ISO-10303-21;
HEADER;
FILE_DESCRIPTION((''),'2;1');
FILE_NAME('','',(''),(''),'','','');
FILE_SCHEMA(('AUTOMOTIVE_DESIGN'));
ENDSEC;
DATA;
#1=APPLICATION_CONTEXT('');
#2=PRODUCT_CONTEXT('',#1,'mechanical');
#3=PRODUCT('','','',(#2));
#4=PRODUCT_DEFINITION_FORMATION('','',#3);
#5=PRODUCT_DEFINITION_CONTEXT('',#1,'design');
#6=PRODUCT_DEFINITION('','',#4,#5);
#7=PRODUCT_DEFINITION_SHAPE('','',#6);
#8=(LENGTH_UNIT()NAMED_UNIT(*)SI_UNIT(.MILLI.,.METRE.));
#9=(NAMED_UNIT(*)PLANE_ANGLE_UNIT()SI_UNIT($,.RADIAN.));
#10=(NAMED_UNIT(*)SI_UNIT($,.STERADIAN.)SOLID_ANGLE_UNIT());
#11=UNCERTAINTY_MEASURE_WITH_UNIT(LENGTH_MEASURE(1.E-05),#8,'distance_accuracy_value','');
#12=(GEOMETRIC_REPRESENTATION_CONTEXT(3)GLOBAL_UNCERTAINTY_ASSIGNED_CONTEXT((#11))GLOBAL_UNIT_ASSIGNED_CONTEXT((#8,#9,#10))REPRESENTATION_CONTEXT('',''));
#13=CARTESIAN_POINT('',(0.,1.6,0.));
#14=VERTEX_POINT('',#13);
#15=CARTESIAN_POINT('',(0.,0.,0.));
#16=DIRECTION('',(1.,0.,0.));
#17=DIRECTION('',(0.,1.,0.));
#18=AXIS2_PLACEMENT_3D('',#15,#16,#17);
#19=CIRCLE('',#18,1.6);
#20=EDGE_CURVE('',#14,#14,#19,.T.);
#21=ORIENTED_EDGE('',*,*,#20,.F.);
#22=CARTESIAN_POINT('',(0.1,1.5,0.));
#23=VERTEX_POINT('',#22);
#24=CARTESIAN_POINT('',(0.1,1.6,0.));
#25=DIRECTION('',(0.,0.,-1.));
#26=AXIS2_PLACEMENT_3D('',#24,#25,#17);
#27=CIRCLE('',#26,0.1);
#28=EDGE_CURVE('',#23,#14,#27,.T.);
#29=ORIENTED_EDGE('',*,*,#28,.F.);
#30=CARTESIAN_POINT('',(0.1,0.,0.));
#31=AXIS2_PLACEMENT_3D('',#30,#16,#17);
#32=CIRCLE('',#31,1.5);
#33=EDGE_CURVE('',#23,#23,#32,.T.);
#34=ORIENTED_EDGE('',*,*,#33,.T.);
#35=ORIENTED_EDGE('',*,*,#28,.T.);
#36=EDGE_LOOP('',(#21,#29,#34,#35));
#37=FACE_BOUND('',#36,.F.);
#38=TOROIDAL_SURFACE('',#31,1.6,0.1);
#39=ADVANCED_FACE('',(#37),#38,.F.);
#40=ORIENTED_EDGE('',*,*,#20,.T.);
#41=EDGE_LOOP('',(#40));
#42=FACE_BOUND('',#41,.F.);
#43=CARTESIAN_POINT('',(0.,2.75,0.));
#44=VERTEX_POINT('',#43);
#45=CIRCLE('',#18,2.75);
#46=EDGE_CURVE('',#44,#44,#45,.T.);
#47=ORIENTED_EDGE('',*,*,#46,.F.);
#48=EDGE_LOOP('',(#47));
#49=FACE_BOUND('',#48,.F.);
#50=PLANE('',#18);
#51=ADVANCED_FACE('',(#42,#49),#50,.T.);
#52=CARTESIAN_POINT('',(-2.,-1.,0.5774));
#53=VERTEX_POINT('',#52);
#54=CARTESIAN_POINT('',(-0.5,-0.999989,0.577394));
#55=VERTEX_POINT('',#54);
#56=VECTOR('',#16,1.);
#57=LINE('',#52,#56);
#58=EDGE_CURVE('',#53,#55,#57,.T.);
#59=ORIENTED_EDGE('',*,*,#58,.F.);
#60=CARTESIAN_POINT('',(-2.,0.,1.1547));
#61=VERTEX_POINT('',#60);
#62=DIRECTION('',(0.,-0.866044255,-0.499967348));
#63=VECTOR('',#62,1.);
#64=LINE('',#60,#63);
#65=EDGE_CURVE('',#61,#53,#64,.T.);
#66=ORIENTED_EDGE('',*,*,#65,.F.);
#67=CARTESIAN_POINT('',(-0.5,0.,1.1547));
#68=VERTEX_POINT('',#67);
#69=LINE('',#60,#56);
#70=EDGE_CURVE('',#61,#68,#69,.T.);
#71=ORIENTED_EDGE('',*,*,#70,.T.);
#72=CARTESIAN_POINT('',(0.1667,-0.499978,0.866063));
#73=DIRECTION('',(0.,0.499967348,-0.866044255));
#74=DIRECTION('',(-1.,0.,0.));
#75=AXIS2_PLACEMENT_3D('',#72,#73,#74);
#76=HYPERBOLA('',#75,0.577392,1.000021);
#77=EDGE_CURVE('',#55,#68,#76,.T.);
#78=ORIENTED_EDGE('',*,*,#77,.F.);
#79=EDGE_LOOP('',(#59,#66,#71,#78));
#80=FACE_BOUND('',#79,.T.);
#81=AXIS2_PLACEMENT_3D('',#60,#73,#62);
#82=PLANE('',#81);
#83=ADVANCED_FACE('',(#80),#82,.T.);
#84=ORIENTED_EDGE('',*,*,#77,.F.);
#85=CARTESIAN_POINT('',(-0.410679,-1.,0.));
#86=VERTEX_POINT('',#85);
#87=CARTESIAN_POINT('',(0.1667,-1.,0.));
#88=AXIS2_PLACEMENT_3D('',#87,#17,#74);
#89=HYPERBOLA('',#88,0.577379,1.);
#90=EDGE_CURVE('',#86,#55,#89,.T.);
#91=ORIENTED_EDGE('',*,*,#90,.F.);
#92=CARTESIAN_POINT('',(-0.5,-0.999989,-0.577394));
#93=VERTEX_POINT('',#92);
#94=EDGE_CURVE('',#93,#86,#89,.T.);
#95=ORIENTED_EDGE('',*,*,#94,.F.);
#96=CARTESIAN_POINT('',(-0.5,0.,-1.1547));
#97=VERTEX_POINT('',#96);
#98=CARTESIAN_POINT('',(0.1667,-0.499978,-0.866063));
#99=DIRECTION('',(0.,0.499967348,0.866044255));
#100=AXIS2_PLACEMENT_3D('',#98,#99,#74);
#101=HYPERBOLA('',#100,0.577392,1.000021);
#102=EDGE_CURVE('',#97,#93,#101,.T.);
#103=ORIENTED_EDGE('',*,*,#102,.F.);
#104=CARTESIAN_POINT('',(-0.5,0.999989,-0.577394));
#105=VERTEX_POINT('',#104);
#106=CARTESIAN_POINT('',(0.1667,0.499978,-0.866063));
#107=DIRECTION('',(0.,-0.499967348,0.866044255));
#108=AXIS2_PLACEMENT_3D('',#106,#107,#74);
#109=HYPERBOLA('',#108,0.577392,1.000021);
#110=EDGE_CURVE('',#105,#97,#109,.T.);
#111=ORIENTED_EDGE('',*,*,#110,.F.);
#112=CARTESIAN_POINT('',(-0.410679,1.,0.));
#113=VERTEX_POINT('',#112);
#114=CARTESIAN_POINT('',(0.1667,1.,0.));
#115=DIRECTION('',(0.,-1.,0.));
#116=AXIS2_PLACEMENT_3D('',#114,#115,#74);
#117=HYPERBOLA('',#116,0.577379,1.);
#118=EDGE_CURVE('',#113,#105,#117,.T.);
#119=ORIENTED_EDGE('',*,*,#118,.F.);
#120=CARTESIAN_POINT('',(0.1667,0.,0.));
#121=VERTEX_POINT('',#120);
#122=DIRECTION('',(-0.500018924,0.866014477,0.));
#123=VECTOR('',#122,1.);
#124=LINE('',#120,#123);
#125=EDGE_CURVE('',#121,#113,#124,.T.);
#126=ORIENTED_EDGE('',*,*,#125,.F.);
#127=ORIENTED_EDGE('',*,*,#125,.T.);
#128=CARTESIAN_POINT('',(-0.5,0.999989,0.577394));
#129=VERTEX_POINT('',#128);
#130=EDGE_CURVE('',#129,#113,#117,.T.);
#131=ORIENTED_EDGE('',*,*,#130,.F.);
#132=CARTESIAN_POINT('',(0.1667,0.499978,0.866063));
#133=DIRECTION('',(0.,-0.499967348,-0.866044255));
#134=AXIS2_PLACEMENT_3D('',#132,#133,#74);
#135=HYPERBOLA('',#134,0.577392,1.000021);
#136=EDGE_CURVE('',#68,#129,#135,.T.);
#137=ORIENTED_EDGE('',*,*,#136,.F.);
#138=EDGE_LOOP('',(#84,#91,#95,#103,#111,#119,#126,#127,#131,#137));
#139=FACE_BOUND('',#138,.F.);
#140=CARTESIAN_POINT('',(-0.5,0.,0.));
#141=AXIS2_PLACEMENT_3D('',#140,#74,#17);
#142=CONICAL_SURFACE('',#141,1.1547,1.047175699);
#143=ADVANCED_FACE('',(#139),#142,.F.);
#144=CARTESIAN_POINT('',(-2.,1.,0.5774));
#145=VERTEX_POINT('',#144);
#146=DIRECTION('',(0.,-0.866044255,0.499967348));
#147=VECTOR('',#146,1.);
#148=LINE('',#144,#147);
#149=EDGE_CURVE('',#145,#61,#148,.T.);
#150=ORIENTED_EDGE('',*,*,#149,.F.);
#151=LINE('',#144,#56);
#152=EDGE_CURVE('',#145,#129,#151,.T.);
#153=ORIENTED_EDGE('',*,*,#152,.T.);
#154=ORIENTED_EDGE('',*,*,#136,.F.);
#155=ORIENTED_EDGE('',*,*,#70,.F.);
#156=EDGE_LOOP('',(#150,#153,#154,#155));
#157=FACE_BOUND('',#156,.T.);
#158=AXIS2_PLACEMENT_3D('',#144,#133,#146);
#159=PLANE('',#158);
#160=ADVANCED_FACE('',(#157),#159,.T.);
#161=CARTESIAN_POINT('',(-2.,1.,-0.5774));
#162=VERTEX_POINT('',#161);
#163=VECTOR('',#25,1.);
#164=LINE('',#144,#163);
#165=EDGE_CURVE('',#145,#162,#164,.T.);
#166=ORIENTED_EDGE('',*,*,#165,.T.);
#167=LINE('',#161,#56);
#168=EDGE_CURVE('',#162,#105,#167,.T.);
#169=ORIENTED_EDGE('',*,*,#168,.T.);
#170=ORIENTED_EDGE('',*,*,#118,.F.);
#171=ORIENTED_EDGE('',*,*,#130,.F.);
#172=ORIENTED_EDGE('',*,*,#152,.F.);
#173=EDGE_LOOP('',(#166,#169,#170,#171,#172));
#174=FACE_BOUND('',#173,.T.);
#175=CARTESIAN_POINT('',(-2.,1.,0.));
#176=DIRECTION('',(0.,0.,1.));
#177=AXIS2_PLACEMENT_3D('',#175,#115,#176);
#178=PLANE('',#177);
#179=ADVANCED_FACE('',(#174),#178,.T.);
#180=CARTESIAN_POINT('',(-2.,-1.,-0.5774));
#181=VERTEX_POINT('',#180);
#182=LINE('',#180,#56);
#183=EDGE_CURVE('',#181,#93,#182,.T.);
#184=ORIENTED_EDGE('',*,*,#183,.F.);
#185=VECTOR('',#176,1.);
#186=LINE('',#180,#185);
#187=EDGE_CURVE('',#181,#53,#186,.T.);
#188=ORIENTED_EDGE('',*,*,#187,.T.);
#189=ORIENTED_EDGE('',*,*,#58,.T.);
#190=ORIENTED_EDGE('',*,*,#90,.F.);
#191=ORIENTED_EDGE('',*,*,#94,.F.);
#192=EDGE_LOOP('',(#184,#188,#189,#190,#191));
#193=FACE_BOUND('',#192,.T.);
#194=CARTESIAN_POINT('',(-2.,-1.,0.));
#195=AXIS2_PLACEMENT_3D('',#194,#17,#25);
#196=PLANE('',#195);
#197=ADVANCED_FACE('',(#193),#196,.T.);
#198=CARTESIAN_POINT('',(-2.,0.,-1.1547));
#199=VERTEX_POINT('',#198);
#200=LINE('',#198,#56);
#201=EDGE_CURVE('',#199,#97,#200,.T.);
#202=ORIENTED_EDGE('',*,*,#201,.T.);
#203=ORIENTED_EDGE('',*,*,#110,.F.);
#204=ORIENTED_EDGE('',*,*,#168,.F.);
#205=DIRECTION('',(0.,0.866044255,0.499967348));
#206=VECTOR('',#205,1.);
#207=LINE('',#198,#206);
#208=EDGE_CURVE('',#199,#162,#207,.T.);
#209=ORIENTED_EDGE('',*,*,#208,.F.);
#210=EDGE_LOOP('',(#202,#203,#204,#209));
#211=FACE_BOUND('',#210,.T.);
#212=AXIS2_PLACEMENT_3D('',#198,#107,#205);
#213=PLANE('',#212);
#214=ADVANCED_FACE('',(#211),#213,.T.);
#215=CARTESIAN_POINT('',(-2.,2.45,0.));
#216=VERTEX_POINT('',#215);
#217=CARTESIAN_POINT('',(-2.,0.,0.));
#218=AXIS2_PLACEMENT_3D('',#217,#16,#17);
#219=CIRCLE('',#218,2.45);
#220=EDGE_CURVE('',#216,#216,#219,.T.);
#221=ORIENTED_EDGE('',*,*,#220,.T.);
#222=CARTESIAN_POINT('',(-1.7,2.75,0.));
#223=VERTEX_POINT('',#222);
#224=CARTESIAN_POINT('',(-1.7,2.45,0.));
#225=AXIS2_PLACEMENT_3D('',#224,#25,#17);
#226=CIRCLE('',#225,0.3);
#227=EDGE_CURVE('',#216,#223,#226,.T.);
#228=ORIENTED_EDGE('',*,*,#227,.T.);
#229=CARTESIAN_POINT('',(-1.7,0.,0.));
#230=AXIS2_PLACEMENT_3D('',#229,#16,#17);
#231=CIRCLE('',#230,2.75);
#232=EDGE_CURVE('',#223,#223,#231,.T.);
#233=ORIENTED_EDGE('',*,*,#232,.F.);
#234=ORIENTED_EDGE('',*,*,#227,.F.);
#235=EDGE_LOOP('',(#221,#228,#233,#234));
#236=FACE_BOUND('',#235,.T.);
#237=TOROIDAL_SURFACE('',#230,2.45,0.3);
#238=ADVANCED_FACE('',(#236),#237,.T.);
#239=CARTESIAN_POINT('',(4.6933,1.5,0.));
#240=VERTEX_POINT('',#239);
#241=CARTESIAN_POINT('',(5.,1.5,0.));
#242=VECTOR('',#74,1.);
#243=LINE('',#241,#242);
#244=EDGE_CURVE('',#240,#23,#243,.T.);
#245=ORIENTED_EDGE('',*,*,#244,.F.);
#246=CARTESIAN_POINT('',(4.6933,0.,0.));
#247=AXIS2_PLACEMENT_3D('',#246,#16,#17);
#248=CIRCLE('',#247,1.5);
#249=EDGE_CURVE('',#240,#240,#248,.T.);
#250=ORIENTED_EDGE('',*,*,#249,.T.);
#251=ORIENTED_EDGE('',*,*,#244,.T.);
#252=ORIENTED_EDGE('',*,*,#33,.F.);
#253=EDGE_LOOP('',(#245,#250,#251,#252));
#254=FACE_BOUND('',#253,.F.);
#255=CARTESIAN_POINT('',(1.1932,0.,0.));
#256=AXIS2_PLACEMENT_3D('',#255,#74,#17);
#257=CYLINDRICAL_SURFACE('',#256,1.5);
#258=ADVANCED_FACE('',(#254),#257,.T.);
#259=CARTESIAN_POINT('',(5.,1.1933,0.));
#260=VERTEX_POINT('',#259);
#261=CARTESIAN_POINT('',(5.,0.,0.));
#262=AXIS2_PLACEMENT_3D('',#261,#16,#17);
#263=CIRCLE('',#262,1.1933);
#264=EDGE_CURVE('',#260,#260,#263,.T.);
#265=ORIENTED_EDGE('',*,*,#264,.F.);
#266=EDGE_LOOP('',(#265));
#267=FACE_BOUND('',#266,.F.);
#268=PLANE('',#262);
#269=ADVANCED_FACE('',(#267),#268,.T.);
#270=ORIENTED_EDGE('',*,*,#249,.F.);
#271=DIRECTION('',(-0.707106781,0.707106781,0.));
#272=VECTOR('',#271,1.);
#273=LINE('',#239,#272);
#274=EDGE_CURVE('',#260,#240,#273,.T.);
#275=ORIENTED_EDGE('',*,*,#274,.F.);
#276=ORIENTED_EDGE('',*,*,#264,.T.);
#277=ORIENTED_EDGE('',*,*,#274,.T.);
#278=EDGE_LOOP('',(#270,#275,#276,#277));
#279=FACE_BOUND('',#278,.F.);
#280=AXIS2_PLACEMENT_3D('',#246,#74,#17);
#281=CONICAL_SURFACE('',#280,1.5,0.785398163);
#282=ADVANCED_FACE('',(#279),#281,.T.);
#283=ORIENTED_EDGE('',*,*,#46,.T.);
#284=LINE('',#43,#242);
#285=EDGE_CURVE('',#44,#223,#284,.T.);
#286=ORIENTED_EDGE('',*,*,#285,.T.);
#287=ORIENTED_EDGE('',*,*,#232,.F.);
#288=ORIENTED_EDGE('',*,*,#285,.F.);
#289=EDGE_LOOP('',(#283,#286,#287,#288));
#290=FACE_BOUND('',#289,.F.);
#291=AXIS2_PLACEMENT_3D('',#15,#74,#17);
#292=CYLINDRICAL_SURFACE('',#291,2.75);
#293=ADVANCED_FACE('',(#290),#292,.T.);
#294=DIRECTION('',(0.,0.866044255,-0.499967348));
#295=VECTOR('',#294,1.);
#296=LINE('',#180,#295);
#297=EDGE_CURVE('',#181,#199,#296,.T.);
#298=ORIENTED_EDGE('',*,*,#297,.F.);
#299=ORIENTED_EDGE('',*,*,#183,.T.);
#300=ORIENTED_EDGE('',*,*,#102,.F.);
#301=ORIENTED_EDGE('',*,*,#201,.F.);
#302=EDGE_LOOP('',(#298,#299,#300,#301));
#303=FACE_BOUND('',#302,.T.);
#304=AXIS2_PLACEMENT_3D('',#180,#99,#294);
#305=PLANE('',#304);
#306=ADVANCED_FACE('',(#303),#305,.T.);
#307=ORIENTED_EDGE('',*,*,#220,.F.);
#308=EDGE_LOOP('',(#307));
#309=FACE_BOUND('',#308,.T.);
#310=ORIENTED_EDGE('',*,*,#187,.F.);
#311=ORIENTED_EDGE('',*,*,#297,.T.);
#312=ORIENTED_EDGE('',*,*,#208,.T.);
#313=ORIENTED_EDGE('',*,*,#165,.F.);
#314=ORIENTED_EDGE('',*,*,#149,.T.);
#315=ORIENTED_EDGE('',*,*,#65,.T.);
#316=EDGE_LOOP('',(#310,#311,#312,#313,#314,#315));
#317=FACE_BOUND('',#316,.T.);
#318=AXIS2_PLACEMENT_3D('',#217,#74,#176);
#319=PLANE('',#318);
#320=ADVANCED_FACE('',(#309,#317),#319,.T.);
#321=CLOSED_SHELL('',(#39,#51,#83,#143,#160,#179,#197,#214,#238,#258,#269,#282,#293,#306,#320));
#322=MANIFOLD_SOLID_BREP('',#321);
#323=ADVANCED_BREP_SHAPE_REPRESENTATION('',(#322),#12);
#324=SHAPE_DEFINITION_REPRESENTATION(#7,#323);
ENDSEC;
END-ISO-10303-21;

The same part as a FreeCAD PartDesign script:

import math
import FreeCAD as App
import Part
import Sketcher
Q = App.Units.Quantity


def edges_at(feature, points):
    """Names of the edges that pass closest to the given points."""
    edges = feature.Shape.Edges
    near = lambda p: min(range(len(edges)), key=lambda i: edges[i].distToShape(Part.Vertex(*p))[0])
    return sorted({f"Edge{near(p) + 1}" for p in points})

doc = App.newDocument("Part")
params = doc.addObject("Spreadsheet::Sheet", "Params")
for row, (alias, value) in enumerate([
    ("sketch1_width", "5 mm"),
    ("sketch1_width2", "2 mm"),
    ("sketch1_width3", "1.5 mm"),
    ("sketch1_height", "1.25 mm"),
    ("revolution_angle", "360 deg"),
    ("fillet_radius", "0.3 mm"),
    ("chamfer_size", "0.3067 mm"),
    ("chamfer_size2", "0.3067 mm"),
    ("fillet2_radius", "0.1 mm"),
], start=1):
    params.set(f"A{row}", alias)
    params.set(f"B{row}", "=" + value)
    params.setAlias(f"B{row}", alias)

body = doc.addObject("PartDesign::Body", "Body")

sketch1 = doc.addObject("Sketcher::SketchObject", "Sketch")
body.addObject(sketch1)
sketch1.AttachmentSupport = (doc.XY_Plane, [""])
sketch1.MapMode = "FlatFace"
sketch1.addGeometry([
    Part.LineSegment(App.Vector(0.2, 0, 0), App.Vector(5, 0, 0)),
    Part.LineSegment(App.Vector(5, 0, 0), App.Vector(5, 1.5, 0)),
    Part.LineSegment(App.Vector(5, 1.5, 0), App.Vector(0, 1.5, 0)),
    Part.LineSegment(App.Vector(0, 1.5, 0), App.Vector(0, 2.8, 0)),
    Part.LineSegment(App.Vector(0, 2.8, 0), App.Vector(-2, 2.8, 0)),
    Part.LineSegment(App.Vector(-2, 2.8, 0), App.Vector(-2, 1.2, 0)),
    Part.LineSegment(App.Vector(-2, 1.2, 0), App.Vector(-0.5, 1.2, 0)),
    Part.LineSegment(App.Vector(-0.5, 1.2, 0), App.Vector(0.2, 0, 0)),
], False)
sketch1.addConstraint([
    Sketcher.Constraint("Coincident", 0, 2, 1, 1),
    Sketcher.Constraint("Coincident", 1, 2, 2, 1),
    Sketcher.Constraint("Coincident", 2, 2, 3, 1),
    Sketcher.Constraint("Coincident", 3, 2, 4, 1),
    Sketcher.Constraint("Coincident", 4, 2, 5, 1),
    Sketcher.Constraint("Coincident", 5, 2, 6, 1),
    Sketcher.Constraint("Coincident", 6, 2, 7, 1),
    Sketcher.Constraint("Coincident", 7, 2, 0, 1),
    Sketcher.Constraint("Horizontal", 0),
    Sketcher.Constraint("Vertical", 1),
    Sketcher.Constraint("Horizontal", 2),
    Sketcher.Constraint("Vertical", 3),
    Sketcher.Constraint("Horizontal", 4),
    Sketcher.Constraint("Vertical", 5),
    Sketcher.Constraint("Horizontal", 6),
    Sketcher.Constraint("PointOnObject", 0, 2, -1),
    Sketcher.Constraint("PointOnObject", 2, 2, -2),
    Sketcher.Constraint("Equal", 6, 1),
    Sketcher.Constraint("DistanceX", 2, 2, 2, 1, Q("5 mm")),
    Sketcher.Constraint("DistanceX", 4, 2, 4, 1, Q("2 mm")),
    Sketcher.Constraint("DistanceX", 6, 1, 6, 2, Q("1.5 mm")),
    Sketcher.Constraint("DistanceY", 3, 1, 3, 2, Q("1.25 mm")),
    Sketcher.Constraint("DistanceX", 0, 1, 0, 2, Q("4.8333 mm")),
    Sketcher.Constraint("DistanceY", 5, 2, 5, 1, Q("1.5953 mm")),
])
sketch1.setExpression("Constraints[18]", "Params.sketch1_width")
sketch1.setExpression("Constraints[19]", "Params.sketch1_width2")
sketch1.setExpression("Constraints[20]", "Params.sketch1_width3")
sketch1.setExpression("Constraints[21]", "Params.sketch1_height")
revolution = doc.addObject("PartDesign::Revolution", "Revolution")
body.addObject(revolution)
revolution.Profile = sketch1
revolution.ReferenceAxis = (sketch1, ["H_Axis"])
revolution.setExpression("Angle", "Params.revolution_angle")

sketch2 = doc.addObject("Sketcher::SketchObject", "Sketch001")
body.addObject(sketch2)
sketch2.AttachmentSupport = (doc.YZ_Plane, [""])
sketch2.MapMode = "FlatFace"
sketch2.AttachmentOffset = App.Placement(App.Vector(0, 0, -2), App.Rotation())
sketch2.addGeometry([
    Part.LineSegment(App.Vector(1, 0.6, 0), App.Vector(0, 1.2, 0)),
    Part.ArcOfCircle(Part.Circle(App.Vector(0, 0, 0), App.Vector(0, 0, 1), 1.2), math.radians(30), math.radians(90)),
    Part.ArcOfCircle(Part.Circle(App.Vector(0, 0, 0), App.Vector(0, 0, 1), 1.2), math.radians(90), math.radians(150)),
    Part.LineSegment(App.Vector(0, 1.2, 0), App.Vector(-1, 0.6, 0)),
    Part.ArcOfCircle(Part.Circle(App.Vector(0, 0, 0), App.Vector(0, 0, 1), 1.2), math.radians(-30), math.radians(30)),
    Part.LineSegment(App.Vector(1, 0.6, 0), App.Vector(1, -0.6, 0)),
    Part.LineSegment(App.Vector(-1, 0.6, 0), App.Vector(-1, -0.6, 0)),
    Part.ArcOfCircle(Part.Circle(App.Vector(0, 0, 0), App.Vector(0, 0, 1), 1.2), math.radians(150), math.radians(210)),
    Part.LineSegment(App.Vector(-1, -0.6, 0), App.Vector(0, -1.2, 0)),
    Part.ArcOfCircle(Part.Circle(App.Vector(0, 0, 0), App.Vector(0, 0, 1), 1.2), math.radians(-150), math.radians(-90)),
    Part.ArcOfCircle(Part.Circle(App.Vector(0, 0, 0), App.Vector(0, 0, 1), 1.2), math.radians(-90), math.radians(-30)),
    Part.LineSegment(App.Vector(0, -1.2, 0), App.Vector(1, -0.6, 0)),
], False)
sketch2.addConstraint([
    Sketcher.Constraint("Coincident", 0, 1, 1, 1),
    Sketcher.Constraint("Coincident", 1, 2, 0, 2),
    Sketcher.Constraint("Coincident", 2, 1, 3, 1),
    Sketcher.Constraint("Coincident", 3, 2, 2, 2),
    Sketcher.Constraint("Coincident", 4, 1, 5, 2),
    Sketcher.Constraint("Coincident", 5, 1, 4, 2),
    Sketcher.Constraint("Coincident", 6, 1, 7, 1),
    Sketcher.Constraint("Coincident", 7, 2, 6, 2),
    Sketcher.Constraint("Coincident", 8, 1, 9, 1),
    Sketcher.Constraint("Coincident", 9, 2, 8, 2),
    Sketcher.Constraint("Coincident", 10, 1, 11, 1),
    Sketcher.Constraint("Coincident", 11, 2, 10, 2),
    Sketcher.Constraint("Vertical", 5),
    Sketcher.Constraint("Vertical", 6),
    Sketcher.Constraint("Coincident", 1, 3, -1, 1),
    Sketcher.Constraint("Coincident", 2, 3, -1, 1),
    Sketcher.Constraint("Coincident", 4, 3, -1, 1),
    Sketcher.Constraint("Coincident", 7, 3, -1, 1),
    Sketcher.Constraint("Coincident", 9, 3, -1, 1),
    Sketcher.Constraint("Coincident", 10, 3, -1, 1),
    Sketcher.Constraint("Coincident", 2, 1, 1, 2),
    Sketcher.Constraint("Coincident", 5, 1, 0, 1),
    Sketcher.Constraint("Coincident", 6, 1, 3, 2),
    Sketcher.Constraint("Coincident", 8, 1, 7, 2),
    Sketcher.Constraint("Coincident", 10, 1, 9, 2),
    Sketcher.Constraint("PointOnObject", 1, 2, -2),
    Sketcher.Constraint("PointOnObject", 9, 2, -2),
    Sketcher.Constraint("Parallel", 0, 8),
    Sketcher.Constraint("Parallel", 3, 11),
    Sketcher.Constraint("DistanceX", -1, 1, 0, 1, Q("1 mm")),
    Sketcher.Constraint("Radius", 1, Q("1.1547 mm")),
])
pad1 = doc.addObject("PartDesign::Pad", "Pad")
body.addObject(pad1)
pad1.Profile = sketch2
pad1.Type = "UpToFirst"
doc.recompute()

fillet = doc.addObject("PartDesign::Fillet", "Fillet")
body.addObject(fillet)
fillet.Base = (pad1, edges_at(pad1, [(-2, -2.75, 0)]))
fillet.setExpression("Radius", "Params.fillet_radius")
doc.recompute()

chamfer = doc.addObject("PartDesign::Chamfer", "Chamfer")
body.addObject(chamfer)
chamfer.Base = (fillet, edges_at(fillet, [(5, -1.5, 0)]))
chamfer.ChamferType = "Two distances"
chamfer.setExpression("Size", "Params.chamfer_size")
chamfer.setExpression("Size2", "Params.chamfer_size2")
doc.recompute()

fillet2 = doc.addObject("PartDesign::Fillet", "Fillet001")
body.addObject(fillet2)
fillet2.Base = (chamfer, edges_at(chamfer, [(0, -1.5, 0)]))
fillet2.setExpression("Radius", "Params.fillet2_radius")

doc.recompute()
